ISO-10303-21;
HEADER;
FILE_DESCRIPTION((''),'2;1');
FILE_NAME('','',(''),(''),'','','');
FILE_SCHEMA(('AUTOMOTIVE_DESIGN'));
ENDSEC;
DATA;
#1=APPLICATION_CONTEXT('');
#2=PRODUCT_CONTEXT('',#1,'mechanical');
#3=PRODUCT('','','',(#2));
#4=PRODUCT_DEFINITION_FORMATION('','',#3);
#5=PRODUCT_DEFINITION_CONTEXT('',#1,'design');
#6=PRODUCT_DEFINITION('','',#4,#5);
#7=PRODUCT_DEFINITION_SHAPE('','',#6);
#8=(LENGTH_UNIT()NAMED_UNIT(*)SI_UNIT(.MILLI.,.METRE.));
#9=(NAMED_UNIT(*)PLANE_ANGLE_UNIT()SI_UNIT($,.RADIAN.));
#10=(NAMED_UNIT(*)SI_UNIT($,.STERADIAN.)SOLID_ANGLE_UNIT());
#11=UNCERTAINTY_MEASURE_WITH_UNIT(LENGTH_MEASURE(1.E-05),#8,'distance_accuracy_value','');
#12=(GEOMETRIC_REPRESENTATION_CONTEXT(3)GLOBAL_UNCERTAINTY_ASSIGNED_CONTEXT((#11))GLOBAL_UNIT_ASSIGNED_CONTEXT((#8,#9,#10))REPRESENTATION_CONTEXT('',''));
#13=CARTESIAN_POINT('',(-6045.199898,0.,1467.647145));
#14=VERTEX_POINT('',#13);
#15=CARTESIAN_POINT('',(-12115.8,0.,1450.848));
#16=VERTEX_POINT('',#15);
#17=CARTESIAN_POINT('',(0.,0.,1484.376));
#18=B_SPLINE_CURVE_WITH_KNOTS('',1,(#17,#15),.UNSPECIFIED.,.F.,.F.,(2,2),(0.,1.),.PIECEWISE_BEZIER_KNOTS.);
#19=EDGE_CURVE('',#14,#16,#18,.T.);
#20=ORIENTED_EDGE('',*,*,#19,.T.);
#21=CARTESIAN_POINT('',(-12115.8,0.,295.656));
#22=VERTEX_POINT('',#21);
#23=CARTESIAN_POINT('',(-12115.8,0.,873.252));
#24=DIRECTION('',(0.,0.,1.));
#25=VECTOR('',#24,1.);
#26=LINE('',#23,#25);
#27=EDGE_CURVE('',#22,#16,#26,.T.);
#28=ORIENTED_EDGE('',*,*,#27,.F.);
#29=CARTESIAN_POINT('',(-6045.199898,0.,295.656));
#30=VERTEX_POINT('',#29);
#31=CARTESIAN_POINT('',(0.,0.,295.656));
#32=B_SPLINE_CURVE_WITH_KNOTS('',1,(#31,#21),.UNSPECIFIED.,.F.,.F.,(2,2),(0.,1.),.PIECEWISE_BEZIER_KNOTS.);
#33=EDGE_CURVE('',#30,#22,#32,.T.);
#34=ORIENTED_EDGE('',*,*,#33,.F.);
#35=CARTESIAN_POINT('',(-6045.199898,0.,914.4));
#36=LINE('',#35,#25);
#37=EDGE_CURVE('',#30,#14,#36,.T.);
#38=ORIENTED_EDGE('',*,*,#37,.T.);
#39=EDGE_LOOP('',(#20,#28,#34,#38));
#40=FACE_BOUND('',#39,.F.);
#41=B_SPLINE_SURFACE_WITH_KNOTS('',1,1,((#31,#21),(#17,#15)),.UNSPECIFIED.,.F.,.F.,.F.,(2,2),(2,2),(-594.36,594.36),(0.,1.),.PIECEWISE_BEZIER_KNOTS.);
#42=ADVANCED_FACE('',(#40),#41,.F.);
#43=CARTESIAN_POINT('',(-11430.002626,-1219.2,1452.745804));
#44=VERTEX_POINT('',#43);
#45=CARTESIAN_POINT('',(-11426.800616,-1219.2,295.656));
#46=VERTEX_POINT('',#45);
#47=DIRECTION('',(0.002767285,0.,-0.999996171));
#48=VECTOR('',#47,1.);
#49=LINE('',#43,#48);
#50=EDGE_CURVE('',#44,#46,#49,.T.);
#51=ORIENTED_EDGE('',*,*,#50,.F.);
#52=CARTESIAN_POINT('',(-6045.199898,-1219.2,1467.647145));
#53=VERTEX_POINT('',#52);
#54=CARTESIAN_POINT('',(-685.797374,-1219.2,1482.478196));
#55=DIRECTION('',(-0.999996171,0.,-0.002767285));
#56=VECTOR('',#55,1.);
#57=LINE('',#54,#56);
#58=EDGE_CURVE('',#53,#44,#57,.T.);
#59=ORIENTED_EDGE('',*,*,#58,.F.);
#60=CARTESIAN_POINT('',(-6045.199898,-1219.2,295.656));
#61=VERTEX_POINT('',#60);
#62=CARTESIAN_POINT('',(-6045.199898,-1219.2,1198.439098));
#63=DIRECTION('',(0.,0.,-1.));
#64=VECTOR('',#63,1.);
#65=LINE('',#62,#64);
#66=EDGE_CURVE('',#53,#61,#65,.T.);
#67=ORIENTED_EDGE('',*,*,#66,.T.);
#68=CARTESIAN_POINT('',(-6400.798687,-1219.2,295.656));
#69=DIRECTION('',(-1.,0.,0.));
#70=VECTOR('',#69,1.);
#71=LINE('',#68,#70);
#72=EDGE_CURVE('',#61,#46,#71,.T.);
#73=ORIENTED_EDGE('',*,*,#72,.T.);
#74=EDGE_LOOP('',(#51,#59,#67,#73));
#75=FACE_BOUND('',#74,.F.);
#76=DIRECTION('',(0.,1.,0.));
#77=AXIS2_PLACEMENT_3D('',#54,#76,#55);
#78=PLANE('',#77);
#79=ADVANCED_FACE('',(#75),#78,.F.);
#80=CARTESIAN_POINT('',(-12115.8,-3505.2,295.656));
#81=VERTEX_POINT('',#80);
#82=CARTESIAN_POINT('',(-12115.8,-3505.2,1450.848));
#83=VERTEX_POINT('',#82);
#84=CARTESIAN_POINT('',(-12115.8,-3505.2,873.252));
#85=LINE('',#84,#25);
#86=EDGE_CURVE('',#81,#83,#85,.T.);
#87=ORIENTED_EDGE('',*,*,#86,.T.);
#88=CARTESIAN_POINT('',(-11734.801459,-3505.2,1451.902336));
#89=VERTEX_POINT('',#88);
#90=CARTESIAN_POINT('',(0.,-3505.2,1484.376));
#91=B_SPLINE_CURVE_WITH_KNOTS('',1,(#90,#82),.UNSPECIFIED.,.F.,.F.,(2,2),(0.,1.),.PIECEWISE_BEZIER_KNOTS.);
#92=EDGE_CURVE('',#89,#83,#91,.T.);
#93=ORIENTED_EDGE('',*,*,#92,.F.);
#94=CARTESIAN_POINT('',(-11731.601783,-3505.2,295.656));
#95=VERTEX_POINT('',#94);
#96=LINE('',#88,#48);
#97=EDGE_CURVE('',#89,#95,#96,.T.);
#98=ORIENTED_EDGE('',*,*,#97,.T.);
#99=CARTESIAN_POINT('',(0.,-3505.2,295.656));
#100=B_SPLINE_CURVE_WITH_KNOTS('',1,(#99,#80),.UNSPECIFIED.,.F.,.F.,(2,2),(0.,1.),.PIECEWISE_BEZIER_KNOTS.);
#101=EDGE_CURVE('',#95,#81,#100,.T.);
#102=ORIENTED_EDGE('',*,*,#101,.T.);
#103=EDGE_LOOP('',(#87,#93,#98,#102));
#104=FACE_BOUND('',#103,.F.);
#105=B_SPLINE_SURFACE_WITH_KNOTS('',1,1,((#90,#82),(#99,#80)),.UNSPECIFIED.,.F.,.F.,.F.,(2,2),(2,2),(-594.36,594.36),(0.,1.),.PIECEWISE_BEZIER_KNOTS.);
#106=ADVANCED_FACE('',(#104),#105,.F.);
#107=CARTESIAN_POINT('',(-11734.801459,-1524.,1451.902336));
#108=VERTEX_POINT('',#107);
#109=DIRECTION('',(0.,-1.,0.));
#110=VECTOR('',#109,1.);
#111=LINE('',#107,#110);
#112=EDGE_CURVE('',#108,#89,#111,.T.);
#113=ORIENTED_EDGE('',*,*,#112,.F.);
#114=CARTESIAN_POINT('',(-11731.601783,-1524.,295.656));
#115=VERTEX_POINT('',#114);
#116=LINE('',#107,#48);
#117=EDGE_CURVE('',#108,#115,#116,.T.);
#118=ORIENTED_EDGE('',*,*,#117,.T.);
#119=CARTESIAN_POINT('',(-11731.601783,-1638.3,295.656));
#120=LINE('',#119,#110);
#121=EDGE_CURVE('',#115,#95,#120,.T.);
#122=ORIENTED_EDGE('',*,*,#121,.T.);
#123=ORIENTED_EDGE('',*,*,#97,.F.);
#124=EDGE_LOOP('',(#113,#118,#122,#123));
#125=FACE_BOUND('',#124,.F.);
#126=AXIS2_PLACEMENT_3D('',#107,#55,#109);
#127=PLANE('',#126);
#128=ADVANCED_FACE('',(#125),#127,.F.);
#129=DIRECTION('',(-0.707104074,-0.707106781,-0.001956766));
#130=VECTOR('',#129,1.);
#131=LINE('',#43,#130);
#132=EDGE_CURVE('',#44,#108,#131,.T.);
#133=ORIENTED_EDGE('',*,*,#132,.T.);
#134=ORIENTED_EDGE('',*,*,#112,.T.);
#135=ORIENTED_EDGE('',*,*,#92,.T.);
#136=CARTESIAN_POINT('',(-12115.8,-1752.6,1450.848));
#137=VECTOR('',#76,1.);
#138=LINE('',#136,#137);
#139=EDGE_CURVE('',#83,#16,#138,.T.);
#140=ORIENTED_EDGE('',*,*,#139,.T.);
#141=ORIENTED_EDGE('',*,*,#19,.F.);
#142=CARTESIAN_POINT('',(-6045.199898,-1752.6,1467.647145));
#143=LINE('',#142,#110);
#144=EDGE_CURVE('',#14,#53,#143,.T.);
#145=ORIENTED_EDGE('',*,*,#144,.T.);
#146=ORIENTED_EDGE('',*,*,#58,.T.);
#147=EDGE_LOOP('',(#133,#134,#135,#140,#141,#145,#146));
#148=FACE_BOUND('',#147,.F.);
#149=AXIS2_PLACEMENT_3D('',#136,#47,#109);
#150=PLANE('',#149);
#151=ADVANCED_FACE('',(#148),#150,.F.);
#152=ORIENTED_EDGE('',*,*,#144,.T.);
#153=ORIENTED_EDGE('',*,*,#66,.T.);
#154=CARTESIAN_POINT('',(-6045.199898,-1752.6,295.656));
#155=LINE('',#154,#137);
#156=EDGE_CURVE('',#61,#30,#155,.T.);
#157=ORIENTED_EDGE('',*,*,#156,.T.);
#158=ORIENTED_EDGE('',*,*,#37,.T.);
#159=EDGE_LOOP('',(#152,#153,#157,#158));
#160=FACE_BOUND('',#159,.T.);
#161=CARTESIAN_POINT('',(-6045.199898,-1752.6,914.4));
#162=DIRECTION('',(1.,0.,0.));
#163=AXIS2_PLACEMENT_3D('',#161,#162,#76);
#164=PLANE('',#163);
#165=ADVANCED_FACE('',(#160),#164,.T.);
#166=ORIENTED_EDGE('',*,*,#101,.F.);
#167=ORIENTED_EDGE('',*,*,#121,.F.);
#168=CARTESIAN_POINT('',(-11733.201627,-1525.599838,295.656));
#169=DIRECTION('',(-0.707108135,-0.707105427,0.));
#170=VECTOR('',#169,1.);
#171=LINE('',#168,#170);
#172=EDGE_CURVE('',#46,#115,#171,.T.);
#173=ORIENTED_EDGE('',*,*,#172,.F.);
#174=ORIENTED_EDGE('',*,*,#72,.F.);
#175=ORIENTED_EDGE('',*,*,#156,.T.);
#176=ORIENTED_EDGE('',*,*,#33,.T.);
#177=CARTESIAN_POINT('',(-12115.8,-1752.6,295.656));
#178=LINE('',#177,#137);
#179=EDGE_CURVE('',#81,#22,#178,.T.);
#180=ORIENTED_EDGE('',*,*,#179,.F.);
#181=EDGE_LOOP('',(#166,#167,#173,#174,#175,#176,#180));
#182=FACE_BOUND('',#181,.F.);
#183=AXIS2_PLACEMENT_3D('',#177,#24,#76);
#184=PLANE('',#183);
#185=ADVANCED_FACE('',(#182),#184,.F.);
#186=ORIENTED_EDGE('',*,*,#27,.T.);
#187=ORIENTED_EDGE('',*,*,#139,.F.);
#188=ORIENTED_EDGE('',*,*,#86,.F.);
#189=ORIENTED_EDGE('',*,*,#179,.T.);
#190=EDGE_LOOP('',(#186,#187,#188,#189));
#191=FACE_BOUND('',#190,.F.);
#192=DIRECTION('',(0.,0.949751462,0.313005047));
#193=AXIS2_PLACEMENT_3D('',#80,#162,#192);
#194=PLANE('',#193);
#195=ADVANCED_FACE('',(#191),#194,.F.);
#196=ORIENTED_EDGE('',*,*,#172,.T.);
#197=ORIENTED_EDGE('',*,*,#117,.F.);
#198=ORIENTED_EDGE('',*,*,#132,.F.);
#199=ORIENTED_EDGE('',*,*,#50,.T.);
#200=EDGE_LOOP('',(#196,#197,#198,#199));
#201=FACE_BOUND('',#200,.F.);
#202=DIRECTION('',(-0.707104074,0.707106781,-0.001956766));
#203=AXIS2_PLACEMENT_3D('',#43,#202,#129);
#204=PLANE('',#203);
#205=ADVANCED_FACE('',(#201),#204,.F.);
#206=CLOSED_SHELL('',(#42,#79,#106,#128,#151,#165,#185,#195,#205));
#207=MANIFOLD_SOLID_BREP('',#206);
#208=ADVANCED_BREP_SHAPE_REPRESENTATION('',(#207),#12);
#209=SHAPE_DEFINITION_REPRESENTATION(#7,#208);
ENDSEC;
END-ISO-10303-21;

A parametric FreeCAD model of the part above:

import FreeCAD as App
import Part
import Sketcher

V = App.Vector
Q = App.Units.Quantity


def add_polygon(sketch, points):
    """Adds a closed chain of lines whose ends are joined by coincident constraints."""
    first, n = sketch.GeometryCount, len(points)
    for a, b in zip(points, points[1:] + points[:1]):
        sketch.addGeometry(Part.LineSegment(App.Vector(*a, 0), App.Vector(*b, 0)), False)
    for i in range(n):
        sketch.addConstraint(Sketcher.Constraint("Coincident", first + i, 2, first + (i + 1) % n, 1))

doc = App.newDocument("Part")
params = doc.addObject("Spreadsheet::Sheet", "Params")
for row, (alias, value) in enumerate([
    ("sketch1_width", "138 in"),
    ("sketch1_height", "46.8 in"),
    ("sketch2_width", "138 in"),
    ("sketch2_height", "45.48 in"),
    ("sketch3_height", "78 in"),
    ("sketch4_width", "138 in"),
    ("sketch4_height", "72 in"),
], start=1):
    params.set(f"A{row}", alias)
    params.set(f"B{row}", "=" + value)
    params.setAlias(f"B{row}", alias)

body = doc.addObject("PartDesign::Body", "Body")

sketch1 = body.newObject("Sketcher::SketchObject", "Sketch")
sketch1.AttachmentSupport = (doc.getObject("YZ_Plane"), [""])
sketch1.MapMode = "FlatFace"
add_polygon(sketch1, [(-3505, 1484), (-3505, 296), (0, 296), (0, 1484)])
sketch1.addConstraint([
    Sketcher.Constraint("Vertical", 0),
    Sketcher.Constraint("Horizontal", 1),
    Sketcher.Constraint("Vertical", 2),
    Sketcher.Constraint("Horizontal", 3),
    Sketcher.Constraint("PointOnObject", 1, 2, -2),
    Sketcher.Constraint("DistanceX", 1, 1, 1, 2, Q("138 in")),
    Sketcher.Constraint("DistanceY", 0, 2, 0, 1, Q("46.8 in")),
    Sketcher.Constraint("DistanceY", -1, 1, 0, 2, Q("11.64 in")),
])
sketch1.setExpression("Constraints[9]", "Params.sketch1_width")
sketch1.setExpression("Constraints[10]", "Params.sketch1_height")

sketch2 = body.newObject("Sketcher::SketchObject", "Sketch001")
sketch2.AttachmentSupport = (doc.getObject("YZ_Plane"), [""])
sketch2.MapMode = "FlatFace"
sketch2.AttachmentOffset = App.Placement(V(0, 0, -477 * 25.4), App.Rotation())
add_polygon(sketch2, [(-3505, 1451), (-3505, 296), (0, 296), (0, 1451)])
sketch2.addConstraint([
    Sketcher.Constraint("Vertical", 0),
    Sketcher.Constraint("Horizontal", 1),
    Sketcher.Constraint("Vertical", 2),
    Sketcher.Constraint("Horizontal", 3),
    Sketcher.Constraint("PointOnObject", 1, 2, -2),
    Sketcher.Constraint("DistanceX", 1, 1, 1, 2, Q("138 in")),
    Sketcher.Constraint("DistanceY", 0, 2, 0, 1, Q("45.48 in")),
    Sketcher.Constraint("DistanceY", -1, 1, 0, 2, Q("11.64 in")),
])
sketch2.setExpression("Constraints[9]", "Params.sketch2_width")
sketch2.setExpression("Constraints[10]", "Params.sketch2_height")

additiveloft = body.newObject("PartDesign::AdditiveLoft", "AdditiveLoft")
additiveloft.Profile = sketch1
additiveloft.Sections = [sketch2]

sketch3 = body.newObject("Sketcher::SketchObject", "Sketch002")
sketch3.Placement = App.Placement(V(-4.107676, 0, 1484.364633), App.Rotation(V(0.999996171, 0, 0.002767285), V(0, 1, 0), V(-0.002767285, 0, 0.999996171), "ZXY"))
add_polygon(sketch3, [(-11731, -1524), (-11731, -3505), (-377, -3505), (-377, -1524), (-682, -1219), (-11426, -1219)])
sketch3.addConstraint([
    Sketcher.Constraint("Vertical", 0),
    Sketcher.Constraint("Horizontal", 1),
    Sketcher.Constraint("Vertical", 2),
    Sketcher.Constraint("Horizontal", 4),
    Sketcher.Constraint("Perpendicular", 3, 5),
    Sketcher.Constraint("Horizontal", 2, 2, 5, 2),
    Sketcher.Constraint("Equal", 3, 5),
    Sketcher.Constraint("DistanceY", 0, 2, 0, 1, Q("78 in")),
    Sketcher.Constraint("DistanceY", 0, 2, -1, 1, Q("138 in")),
    Sketcher.Constraint("DistanceY", 3, 2, -1, 1, Q("48 in")),
    Sketcher.Constraint("DistanceX", 1, 1, 1, 2, 11353.84639),
    Sketcher.Constraint("DistanceX", 0, 2, -1, 1, 11730.738698),
])
sketch3.setExpression("Constraints[13]", "Params.sketch3_height")
pocket1 = body.newObject("PartDesign::Pocket", "Pocket")
pocket1.Profile = sketch3
pocket1.Type = "ThroughAll"

sketch4 = body.newObject("Sketcher::SketchObject", "Sketch003")
sketch4.AttachmentSupport = (doc.getObject("YZ_Plane"), [""])
sketch4.MapMode = "FlatFace"
sketch4.AttachmentOffset = App.Placement(V(0, 0, -6045.199898), App.Rotation())
add_polygon(sketch4, [(-3505, 1829), (-3505, 0), (0, 0), (0, 1829)])
sketch4.addConstraint([
    Sketcher.Constraint("Vertical", 0),
    Sketcher.Constraint("Horizontal", 1),
    Sketcher.Constraint("Vertical", 2),
    Sketcher.Constraint("Horizontal", 3),
    Sketcher.Constraint("Coincident", 1, 2, -1, 1),
    Sketcher.Constraint("DistanceX", 1, 1, 1, 2, Q("138 in")),
    Sketcher.Constraint("DistanceY", 0, 2, 0, 1, Q("72 in")),
])
sketch4.setExpression("Constraints[9]", "Params.sketch4_width")
sketch4.setExpression("Constraints[10]", "Params.sketch4_height")
pocket2 = body.newObject("PartDesign::Pocket", "Pocket001")
pocket2.Profile = sketch4
pocket2.Type = "ThroughAll"
pocket2.Reversed = True

doc.recompute()
